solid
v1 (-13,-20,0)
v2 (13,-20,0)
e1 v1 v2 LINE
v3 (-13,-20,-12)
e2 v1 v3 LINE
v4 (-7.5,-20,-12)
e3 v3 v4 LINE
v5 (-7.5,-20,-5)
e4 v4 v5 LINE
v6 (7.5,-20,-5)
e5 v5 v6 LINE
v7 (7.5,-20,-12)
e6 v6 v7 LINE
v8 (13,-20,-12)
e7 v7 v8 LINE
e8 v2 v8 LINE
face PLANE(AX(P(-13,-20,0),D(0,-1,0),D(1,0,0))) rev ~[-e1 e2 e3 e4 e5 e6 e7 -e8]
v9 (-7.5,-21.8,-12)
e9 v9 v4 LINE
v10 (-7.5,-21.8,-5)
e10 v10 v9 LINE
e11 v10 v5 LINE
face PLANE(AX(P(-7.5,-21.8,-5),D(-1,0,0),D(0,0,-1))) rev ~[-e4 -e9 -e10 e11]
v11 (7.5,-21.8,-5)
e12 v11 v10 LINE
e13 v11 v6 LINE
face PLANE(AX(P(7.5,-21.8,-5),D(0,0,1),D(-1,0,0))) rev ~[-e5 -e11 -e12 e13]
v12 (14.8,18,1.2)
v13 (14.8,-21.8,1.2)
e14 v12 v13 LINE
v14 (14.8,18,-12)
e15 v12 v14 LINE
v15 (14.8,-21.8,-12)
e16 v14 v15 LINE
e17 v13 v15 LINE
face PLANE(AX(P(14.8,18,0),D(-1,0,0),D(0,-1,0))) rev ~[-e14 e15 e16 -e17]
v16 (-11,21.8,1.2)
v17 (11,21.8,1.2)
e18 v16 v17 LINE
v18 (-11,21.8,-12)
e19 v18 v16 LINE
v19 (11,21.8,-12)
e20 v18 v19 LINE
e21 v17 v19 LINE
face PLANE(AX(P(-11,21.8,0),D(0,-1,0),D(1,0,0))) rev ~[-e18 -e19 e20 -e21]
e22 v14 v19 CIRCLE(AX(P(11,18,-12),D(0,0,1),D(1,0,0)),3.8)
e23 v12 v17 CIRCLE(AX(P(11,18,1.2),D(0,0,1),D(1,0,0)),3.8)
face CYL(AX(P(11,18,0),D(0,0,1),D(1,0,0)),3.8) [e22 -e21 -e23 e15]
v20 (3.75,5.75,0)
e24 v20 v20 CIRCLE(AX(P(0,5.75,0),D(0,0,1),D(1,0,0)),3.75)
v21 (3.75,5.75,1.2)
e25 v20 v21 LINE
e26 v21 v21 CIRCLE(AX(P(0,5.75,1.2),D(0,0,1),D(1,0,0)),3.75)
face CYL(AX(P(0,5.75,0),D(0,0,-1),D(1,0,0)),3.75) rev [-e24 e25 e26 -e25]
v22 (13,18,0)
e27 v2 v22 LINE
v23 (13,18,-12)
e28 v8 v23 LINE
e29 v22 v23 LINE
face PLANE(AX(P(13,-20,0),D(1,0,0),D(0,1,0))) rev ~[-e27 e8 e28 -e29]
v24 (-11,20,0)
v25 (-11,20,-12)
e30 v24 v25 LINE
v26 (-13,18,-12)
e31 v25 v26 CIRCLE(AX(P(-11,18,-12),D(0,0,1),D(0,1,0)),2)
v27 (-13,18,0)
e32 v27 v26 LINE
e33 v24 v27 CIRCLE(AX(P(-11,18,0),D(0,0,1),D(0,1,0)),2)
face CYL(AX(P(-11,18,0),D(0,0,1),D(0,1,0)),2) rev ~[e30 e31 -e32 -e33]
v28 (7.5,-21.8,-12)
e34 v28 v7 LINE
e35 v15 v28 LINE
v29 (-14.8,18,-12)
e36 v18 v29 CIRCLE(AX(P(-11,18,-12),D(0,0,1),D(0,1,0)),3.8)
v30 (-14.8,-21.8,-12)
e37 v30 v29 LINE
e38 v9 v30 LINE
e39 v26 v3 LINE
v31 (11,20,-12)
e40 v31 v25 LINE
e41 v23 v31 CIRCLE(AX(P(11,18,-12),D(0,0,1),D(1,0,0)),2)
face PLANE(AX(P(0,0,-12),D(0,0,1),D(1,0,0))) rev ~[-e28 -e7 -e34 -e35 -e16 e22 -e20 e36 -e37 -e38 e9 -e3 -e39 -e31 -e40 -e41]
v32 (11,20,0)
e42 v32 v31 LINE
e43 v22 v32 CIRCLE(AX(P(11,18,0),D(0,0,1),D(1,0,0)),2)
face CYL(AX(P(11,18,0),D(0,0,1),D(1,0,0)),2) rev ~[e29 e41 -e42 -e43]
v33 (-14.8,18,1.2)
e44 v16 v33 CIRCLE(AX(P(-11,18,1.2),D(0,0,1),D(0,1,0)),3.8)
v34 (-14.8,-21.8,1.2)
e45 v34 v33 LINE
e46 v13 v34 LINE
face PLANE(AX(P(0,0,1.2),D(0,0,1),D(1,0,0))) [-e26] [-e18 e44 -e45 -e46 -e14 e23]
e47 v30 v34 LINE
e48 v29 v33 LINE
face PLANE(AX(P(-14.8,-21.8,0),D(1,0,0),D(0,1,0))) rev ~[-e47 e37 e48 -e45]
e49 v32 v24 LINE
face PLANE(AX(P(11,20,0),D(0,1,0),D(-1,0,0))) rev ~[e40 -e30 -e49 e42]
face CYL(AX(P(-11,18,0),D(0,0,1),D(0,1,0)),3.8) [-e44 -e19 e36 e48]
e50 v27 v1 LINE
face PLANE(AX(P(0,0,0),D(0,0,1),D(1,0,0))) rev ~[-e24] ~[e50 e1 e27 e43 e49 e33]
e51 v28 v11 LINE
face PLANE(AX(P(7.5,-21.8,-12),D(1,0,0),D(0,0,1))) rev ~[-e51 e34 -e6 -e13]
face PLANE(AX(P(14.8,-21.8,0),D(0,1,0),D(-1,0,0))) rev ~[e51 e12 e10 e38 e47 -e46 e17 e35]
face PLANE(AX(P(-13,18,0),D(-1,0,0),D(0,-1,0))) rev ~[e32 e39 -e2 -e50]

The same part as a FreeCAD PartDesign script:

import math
import FreeCAD as App
import Part
import Sketcher


def add_polygon(sketch, points):
    """Adds a closed chain of lines whose ends are joined by coincident constraints."""
    first, n = sketch.GeometryCount, len(points)
    for a, b in zip(points, points[1:] + points[:1]):
        sketch.addGeometry(Part.LineSegment(App.Vector(*a, 0), App.Vector(*b, 0)), False)
    for i in range(n):
        sketch.addConstraint(Sketcher.Constraint("Coincident", first + i, 2, first + (i + 1) % n, 1))

doc = App.newDocument("Part")
body = doc.addObject("PartDesign::Body", "Body")

sketch1 = doc.addObject("Sketcher::SketchObject", "Sketch")
body.addObject(sketch1)
sketch1.AttachmentSupport = (doc.XY_Plane, [""])
sketch1.MapMode = "FlatFace"
sketch1.addGeometry([
    Part.LineSegment(App.Vector(11, 21.8, 0), App.Vector(-11, 21.8, 0)),
    Part.ArcOfCircle(Part.Circle(App.Vector(-11, 18, 0), App.Vector(0, 0, 1), 3.8), math.radians(90), math.radians(180)),
    Part.LineSegment(App.Vector(-14.8, 18, 0), App.Vector(-14.8, -21.8, 0)),
    Part.LineSegment(App.Vector(-14.8, -21.8, 0), App.Vector(14.8, -21.8, 0)),
    Part.LineSegment(App.Vector(14.8, -21.8, 0), App.Vector(14.8, 18, 0)),
    Part.ArcOfCircle(Part.Circle(App.Vector(11, 18, 0), App.Vector(0, 0, 1), 3.8), math.radians(0), math.radians(90)),
    Part.LineSegment(App.Vector(13, -20, 0), App.Vector(-13, -20, 0)),
    Part.LineSegment(App.Vector(-13, -20, 0), App.Vector(-13, 18, 0)),
    Part.ArcOfCircle(Part.Circle(App.Vector(-11, 18, 0), App.Vector(0, 0, 1), 2), math.radians(90), math.radians(180)),
    Part.LineSegment(App.Vector(-11, 20, 0), App.Vector(11, 20, 0)),
    Part.ArcOfCircle(Part.Circle(App.Vector(11, 18, 0), App.Vector(0, 0, 1), 2), math.radians(0), math.radians(90)),
    Part.LineSegment(App.Vector(13, 18, 0), App.Vector(13, -20, 0)),
], False)
sketch1.addConstraint([
    Sketcher.Constraint("Tangent", 0, 2, 1, 1),
    Sketcher.Constraint("Tangent", 1, 2, 2, 1),
    Sketcher.Constraint("Coincident", 2, 2, 3, 1),
    Sketcher.Constraint("Coincident", 3, 2, 4, 1),
    Sketcher.Constraint("Tangent", 4, 2, 5, 1),
    Sketcher.Constraint("Tangent", 5, 2, 0, 1),
    Sketcher.Constraint("Coincident", 6, 2, 7, 1),
    Sketcher.Constraint("Tangent", 7, 2, 8, 2),
    Sketcher.Constraint("Tangent", 8, 1, 9, 1),
    Sketcher.Constraint("Tangent", 9, 2, 10, 2),
    Sketcher.Constraint("Tangent", 10, 1, 11, 1),
    Sketcher.Constraint("Coincident", 11, 2, 6, 1),
    Sketcher.Constraint("Horizontal", 0),
    Sketcher.Constraint("Vertical", 2),
    Sketcher.Constraint("Horizontal", 3),
    Sketcher.Constraint("Vertical", 4),
    Sketcher.Constraint("Horizontal", 6),
    Sketcher.Constraint("Vertical", 7),
    Sketcher.Constraint("Horizontal", 9),
    Sketcher.Constraint("Vertical", 11),
    Sketcher.Constraint("Coincident", 8, 3, 1, 3),
    Sketcher.Constraint("Coincident", 10, 3, 5, 3),
    Sketcher.Constraint("Equal", 1, 5),
    Sketcher.Constraint("Radius", 8, 2.0),
    Sketcher.Constraint("DistanceX", 6, 2, 6, 1, 26.0),
    Sketcher.Constraint("Radius", 1, 3.8),
    Sketcher.Constraint("DistanceY", 2, 2, 6, 2, 1.8),
    Sketcher.Constraint("DistanceY", 7, 1, 7, 2, 38.0),
    Sketcher.Constraint("DistanceX", 1, 3, -1, 1, 11.0),
    Sketcher.Constraint("DistanceY", -1, 1, 1, 3, 18.0),
])
pad1 = doc.addObject("PartDesign::Pad", "Pad")
body.addObject(pad1)
pad1.Profile = sketch1
pad1.Length = 12
pad1.Reversed = True

sketch2 = doc.addObject("Sketcher::SketchObject", "Sketch001")
body.addObject(sketch2)
sketch2.AttachmentSupport = (doc.XY_Plane, [""])
sketch2.MapMode = "FlatFace"
sketch2.addGeometry([
    Part.LineSegment(App.Vector(11, 21.8, 0), App.Vector(-11, 21.8, 0)),
    Part.ArcOfCircle(Part.Circle(App.Vector(-11, 18, 0), App.Vector(0, 0, 1), 3.8), math.radians(90), math.radians(180)),
    Part.LineSegment(App.Vector(-14.8, 18, 0), App.Vector(-14.8, -21.8, 0)),
    Part.LineSegment(App.Vector(-14.8, -21.8, 0), App.Vector(14.8, -21.8, 0)),
    Part.LineSegment(App.Vector(14.8, -21.8, 0), App.Vector(14.8, 18, 0)),
    Part.ArcOfCircle(Part.Circle(App.Vector(11, 18, 0), App.Vector(0, 0, 1), 3.8), math.radians(0), math.radians(90)),
    Part.Circle(App.Vector(0, 5.8, 0), App.Vector(0, 0, 1), 3.8),
], False)
sketch2.addConstraint([
    Sketcher.Constraint("Tangent", 0, 2, 1, 1),
    Sketcher.Constraint("Tangent", 1, 2, 2, 1),
    Sketcher.Constraint("Coincident", 2, 2, 3, 1),
    Sketcher.Constraint("Coincident", 3, 2, 4, 1),
    Sketcher.Constraint("Tangent", 4, 2, 5, 1),
    Sketcher.Constraint("Tangent", 5, 2, 0, 1),
    Sketcher.Constraint("Horizontal", 0),
    Sketcher.Constraint("Vertical", 2),
    Sketcher.Constraint("Horizontal", 3),
    Sketcher.Constraint("Vertical", 4),
    Sketcher.Constraint("Equal", 1, 5),
    Sketcher.Constraint("PointOnObject", 6, 3, -2),
    Sketcher.Constraint("Diameter", 6, 7.5),
    Sketcher.Constraint("Radius", 1, 3.8),
    Sketcher.Constraint("DistanceX", 0, 2, 0, 1, 22.0),
    Sketcher.Constraint("DistanceY", 2, 2, 2, 1, 39.8),
    Sketcher.Constraint("DistanceX", 1, 3, -1, 1, 11.0),
    Sketcher.Constraint("DistanceY", -1, 1, 1, 3, 18.0),
    Sketcher.Constraint("DistanceY", -1, 1, 6, 3, 5.75),
])
pad2 = doc.addObject("PartDesign::Pad", "Pad001")
body.addObject(pad2)
pad2.Profile = sketch2
pad2.Length = 1.2

sketch3 = doc.addObject("Sketcher::SketchObject", "Sketch002")
body.addObject(sketch3)
sketch3.AttachmentSupport = (doc.XZ_Plane, [""])
sketch3.MapMode = "FlatFace"
sketch3.AttachmentOffset = App.Placement(App.Vector(0, 0, 21.8), App.Rotation())
add_polygon(sketch3, [(-8, -5), (-8, -12), (8, -12), (8, -5)])
sketch3.addConstraint([
    Sketcher.Constraint("Vertical", 0),
    Sketcher.Constraint("Horizontal", 1),
    Sketcher.Constraint("Vertical", 2),
    Sketcher.Constraint("Horizontal", 3),
    Sketcher.Constraint("DistanceX", 1, 1, 1, 2, 15.0),
    Sketcher.Constraint("DistanceY", 0, 2, 0, 1, 7.0),
    Sketcher.Constraint("DistanceY", 0, 2, -1, 1, 12.0),
    Sketcher.Constraint("DistanceX", 0, 2, -1, 1, 7.5),
])
pocket1 = doc.addObject("PartDesign::Pocket", "Pocket")
body.addObject(pocket1)
pocket1.Profile = sketch3
pocket1.Type = "UpToFirst"

doc.recompute()
